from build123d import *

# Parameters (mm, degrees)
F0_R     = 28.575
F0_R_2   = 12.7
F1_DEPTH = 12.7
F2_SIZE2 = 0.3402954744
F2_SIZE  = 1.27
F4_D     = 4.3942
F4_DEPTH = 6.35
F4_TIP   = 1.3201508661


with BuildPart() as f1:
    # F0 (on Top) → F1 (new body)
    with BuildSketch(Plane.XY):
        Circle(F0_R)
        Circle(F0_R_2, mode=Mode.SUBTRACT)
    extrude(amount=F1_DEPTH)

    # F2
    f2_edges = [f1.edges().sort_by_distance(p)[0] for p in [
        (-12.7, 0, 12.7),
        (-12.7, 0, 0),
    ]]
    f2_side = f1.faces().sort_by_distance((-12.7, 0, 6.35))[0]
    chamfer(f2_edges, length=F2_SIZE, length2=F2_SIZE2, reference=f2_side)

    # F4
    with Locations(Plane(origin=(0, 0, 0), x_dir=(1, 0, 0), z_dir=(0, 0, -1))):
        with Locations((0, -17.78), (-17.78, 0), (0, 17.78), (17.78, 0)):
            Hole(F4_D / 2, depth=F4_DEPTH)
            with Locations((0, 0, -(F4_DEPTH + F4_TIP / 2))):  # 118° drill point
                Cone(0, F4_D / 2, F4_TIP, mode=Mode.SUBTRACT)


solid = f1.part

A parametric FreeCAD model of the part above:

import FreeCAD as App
import Part
import Sketcher
from FreeCAD import Vector
Q = App.Units.Quantity


def edges_at(feature, points):
    """Names of the edges that pass closest to the given points."""
    edges = feature.Shape.Edges
    near = lambda p: min(range(len(edges)), key=lambda i: edges[i].distToShape(Part.Vertex(*p))[0])
    return sorted({f"Edge{near(p) + 1}" for p in points})

doc = App.newDocument("Part")
body = doc.addObject("PartDesign::Body", "Body")

# Sketch on XY plane
sketch1 = body.newObject("Sketcher::SketchObject", "Sketch")
sketch1.AttachmentSupport = (doc.getObject("XY_Plane"), [""])
sketch1.MapMode = "FlatFace"
sketch1.addGeometry(Part.Circle(Vector(0, 0, 0), Vector(0, 0, 1), 29), False)
sketch1.addGeometry(Part.Circle(Vector(0, 0, 0), Vector(0, 0, 1), 13), False)
sketch1.addConstraint(Sketcher.Constraint("Coincident", 0, 3, -1, 1))
sketch1.addConstraint(Sketcher.Constraint("Coincident", 1, 3, -1, 1))
sketch1.addConstraint(Sketcher.Constraint("Diameter", 1, Q("1 in")))
sketch1.addConstraint(Sketcher.Constraint("Diameter", 0, Q("2.25 in")))
pad1 = body.newObject("PartDesign::Pad", "Pad")
pad1.Profile = sketch1
pad1.Length = Q("0.5 in")
doc.recompute()

chamfer = body.newObject("PartDesign::Chamfer", "Chamfer")
chamfer.Base = (pad1, edges_at(pad1, [(-12.7, 0, 12.7), (-12.7, 0, 0)]))
chamfer.ChamferType = "Two distances"
chamfer.Size = Q("0.05 in")
chamfer.Size2 = 0.340295

# Sketch on XY plane
sketch2 = body.newObject("Sketcher::SketchObject", "Sketch001")
sketch2.AttachmentSupport = (doc.getObject("XY_Plane"), [""])
sketch2.MapMode = "FlatFace"
sketch2.addGeometry(Part.Circle(Vector(0, 17.8, 0), Vector(0, 0, 1), 2.2), False)
sketch2.addGeometry(Part.Circle(Vector(-17.8, 0, 0), Vector(0, 0, 1), 2.2), False)
sketch2.addGeometry(Part.Circle(Vector(0, -17.8, 0), Vector(0, 0, 1), 2.2), False)
sketch2.addGeometry(Part.Circle(Vector(17.8, 0, 0), Vector(0, 0, 1), 2.2), False)
sketch2.addConstraint(Sketcher.Constraint("Equal", 0, 1))
sketch2.addConstraint(Sketcher.Constraint("Equal", 1, 2))
sketch2.addConstraint(Sketcher.Constraint("Equal", 2, 3))
sketch2.addConstraint(Sketcher.Constraint("Symmetric", 0, 3, 2, 3, -1, 1))
sketch2.addConstraint(Sketcher.Constraint("Symmetric", 1, 3, 3, 3, -1, 1))
sketch2.addConstraint(Sketcher.Constraint("PointOnObject", 0, 3, -2))
sketch2.addConstraint(Sketcher.Constraint("PointOnObject", 1, 3, -1))
sketch2.addConstraint(Sketcher.Constraint("Diameter", 0, Q("0.173 in")))
sketch2.addConstraint(Sketcher.Constraint("DistanceY", -1, 1, 0, 3, Q("0.7 in")))
sketch2.addConstraint(Sketcher.Constraint("DistanceX", 1, 3, -1, 1, Q("0.7 in")))
doc.recompute()
hole = body.newObject("PartDesign::Hole", "Hole")
hole.Profile = sketch2
hole.ThreadType = "None"
hole.Diameter = Q("0.173 in")
hole.DepthType = "Dimension"
hole.Depth = Q("0.25 in")
hole.DrillPoint = "Angled"
hole.DrillPointAngle = 118
hole.Reversed = True

doc.recompute()
